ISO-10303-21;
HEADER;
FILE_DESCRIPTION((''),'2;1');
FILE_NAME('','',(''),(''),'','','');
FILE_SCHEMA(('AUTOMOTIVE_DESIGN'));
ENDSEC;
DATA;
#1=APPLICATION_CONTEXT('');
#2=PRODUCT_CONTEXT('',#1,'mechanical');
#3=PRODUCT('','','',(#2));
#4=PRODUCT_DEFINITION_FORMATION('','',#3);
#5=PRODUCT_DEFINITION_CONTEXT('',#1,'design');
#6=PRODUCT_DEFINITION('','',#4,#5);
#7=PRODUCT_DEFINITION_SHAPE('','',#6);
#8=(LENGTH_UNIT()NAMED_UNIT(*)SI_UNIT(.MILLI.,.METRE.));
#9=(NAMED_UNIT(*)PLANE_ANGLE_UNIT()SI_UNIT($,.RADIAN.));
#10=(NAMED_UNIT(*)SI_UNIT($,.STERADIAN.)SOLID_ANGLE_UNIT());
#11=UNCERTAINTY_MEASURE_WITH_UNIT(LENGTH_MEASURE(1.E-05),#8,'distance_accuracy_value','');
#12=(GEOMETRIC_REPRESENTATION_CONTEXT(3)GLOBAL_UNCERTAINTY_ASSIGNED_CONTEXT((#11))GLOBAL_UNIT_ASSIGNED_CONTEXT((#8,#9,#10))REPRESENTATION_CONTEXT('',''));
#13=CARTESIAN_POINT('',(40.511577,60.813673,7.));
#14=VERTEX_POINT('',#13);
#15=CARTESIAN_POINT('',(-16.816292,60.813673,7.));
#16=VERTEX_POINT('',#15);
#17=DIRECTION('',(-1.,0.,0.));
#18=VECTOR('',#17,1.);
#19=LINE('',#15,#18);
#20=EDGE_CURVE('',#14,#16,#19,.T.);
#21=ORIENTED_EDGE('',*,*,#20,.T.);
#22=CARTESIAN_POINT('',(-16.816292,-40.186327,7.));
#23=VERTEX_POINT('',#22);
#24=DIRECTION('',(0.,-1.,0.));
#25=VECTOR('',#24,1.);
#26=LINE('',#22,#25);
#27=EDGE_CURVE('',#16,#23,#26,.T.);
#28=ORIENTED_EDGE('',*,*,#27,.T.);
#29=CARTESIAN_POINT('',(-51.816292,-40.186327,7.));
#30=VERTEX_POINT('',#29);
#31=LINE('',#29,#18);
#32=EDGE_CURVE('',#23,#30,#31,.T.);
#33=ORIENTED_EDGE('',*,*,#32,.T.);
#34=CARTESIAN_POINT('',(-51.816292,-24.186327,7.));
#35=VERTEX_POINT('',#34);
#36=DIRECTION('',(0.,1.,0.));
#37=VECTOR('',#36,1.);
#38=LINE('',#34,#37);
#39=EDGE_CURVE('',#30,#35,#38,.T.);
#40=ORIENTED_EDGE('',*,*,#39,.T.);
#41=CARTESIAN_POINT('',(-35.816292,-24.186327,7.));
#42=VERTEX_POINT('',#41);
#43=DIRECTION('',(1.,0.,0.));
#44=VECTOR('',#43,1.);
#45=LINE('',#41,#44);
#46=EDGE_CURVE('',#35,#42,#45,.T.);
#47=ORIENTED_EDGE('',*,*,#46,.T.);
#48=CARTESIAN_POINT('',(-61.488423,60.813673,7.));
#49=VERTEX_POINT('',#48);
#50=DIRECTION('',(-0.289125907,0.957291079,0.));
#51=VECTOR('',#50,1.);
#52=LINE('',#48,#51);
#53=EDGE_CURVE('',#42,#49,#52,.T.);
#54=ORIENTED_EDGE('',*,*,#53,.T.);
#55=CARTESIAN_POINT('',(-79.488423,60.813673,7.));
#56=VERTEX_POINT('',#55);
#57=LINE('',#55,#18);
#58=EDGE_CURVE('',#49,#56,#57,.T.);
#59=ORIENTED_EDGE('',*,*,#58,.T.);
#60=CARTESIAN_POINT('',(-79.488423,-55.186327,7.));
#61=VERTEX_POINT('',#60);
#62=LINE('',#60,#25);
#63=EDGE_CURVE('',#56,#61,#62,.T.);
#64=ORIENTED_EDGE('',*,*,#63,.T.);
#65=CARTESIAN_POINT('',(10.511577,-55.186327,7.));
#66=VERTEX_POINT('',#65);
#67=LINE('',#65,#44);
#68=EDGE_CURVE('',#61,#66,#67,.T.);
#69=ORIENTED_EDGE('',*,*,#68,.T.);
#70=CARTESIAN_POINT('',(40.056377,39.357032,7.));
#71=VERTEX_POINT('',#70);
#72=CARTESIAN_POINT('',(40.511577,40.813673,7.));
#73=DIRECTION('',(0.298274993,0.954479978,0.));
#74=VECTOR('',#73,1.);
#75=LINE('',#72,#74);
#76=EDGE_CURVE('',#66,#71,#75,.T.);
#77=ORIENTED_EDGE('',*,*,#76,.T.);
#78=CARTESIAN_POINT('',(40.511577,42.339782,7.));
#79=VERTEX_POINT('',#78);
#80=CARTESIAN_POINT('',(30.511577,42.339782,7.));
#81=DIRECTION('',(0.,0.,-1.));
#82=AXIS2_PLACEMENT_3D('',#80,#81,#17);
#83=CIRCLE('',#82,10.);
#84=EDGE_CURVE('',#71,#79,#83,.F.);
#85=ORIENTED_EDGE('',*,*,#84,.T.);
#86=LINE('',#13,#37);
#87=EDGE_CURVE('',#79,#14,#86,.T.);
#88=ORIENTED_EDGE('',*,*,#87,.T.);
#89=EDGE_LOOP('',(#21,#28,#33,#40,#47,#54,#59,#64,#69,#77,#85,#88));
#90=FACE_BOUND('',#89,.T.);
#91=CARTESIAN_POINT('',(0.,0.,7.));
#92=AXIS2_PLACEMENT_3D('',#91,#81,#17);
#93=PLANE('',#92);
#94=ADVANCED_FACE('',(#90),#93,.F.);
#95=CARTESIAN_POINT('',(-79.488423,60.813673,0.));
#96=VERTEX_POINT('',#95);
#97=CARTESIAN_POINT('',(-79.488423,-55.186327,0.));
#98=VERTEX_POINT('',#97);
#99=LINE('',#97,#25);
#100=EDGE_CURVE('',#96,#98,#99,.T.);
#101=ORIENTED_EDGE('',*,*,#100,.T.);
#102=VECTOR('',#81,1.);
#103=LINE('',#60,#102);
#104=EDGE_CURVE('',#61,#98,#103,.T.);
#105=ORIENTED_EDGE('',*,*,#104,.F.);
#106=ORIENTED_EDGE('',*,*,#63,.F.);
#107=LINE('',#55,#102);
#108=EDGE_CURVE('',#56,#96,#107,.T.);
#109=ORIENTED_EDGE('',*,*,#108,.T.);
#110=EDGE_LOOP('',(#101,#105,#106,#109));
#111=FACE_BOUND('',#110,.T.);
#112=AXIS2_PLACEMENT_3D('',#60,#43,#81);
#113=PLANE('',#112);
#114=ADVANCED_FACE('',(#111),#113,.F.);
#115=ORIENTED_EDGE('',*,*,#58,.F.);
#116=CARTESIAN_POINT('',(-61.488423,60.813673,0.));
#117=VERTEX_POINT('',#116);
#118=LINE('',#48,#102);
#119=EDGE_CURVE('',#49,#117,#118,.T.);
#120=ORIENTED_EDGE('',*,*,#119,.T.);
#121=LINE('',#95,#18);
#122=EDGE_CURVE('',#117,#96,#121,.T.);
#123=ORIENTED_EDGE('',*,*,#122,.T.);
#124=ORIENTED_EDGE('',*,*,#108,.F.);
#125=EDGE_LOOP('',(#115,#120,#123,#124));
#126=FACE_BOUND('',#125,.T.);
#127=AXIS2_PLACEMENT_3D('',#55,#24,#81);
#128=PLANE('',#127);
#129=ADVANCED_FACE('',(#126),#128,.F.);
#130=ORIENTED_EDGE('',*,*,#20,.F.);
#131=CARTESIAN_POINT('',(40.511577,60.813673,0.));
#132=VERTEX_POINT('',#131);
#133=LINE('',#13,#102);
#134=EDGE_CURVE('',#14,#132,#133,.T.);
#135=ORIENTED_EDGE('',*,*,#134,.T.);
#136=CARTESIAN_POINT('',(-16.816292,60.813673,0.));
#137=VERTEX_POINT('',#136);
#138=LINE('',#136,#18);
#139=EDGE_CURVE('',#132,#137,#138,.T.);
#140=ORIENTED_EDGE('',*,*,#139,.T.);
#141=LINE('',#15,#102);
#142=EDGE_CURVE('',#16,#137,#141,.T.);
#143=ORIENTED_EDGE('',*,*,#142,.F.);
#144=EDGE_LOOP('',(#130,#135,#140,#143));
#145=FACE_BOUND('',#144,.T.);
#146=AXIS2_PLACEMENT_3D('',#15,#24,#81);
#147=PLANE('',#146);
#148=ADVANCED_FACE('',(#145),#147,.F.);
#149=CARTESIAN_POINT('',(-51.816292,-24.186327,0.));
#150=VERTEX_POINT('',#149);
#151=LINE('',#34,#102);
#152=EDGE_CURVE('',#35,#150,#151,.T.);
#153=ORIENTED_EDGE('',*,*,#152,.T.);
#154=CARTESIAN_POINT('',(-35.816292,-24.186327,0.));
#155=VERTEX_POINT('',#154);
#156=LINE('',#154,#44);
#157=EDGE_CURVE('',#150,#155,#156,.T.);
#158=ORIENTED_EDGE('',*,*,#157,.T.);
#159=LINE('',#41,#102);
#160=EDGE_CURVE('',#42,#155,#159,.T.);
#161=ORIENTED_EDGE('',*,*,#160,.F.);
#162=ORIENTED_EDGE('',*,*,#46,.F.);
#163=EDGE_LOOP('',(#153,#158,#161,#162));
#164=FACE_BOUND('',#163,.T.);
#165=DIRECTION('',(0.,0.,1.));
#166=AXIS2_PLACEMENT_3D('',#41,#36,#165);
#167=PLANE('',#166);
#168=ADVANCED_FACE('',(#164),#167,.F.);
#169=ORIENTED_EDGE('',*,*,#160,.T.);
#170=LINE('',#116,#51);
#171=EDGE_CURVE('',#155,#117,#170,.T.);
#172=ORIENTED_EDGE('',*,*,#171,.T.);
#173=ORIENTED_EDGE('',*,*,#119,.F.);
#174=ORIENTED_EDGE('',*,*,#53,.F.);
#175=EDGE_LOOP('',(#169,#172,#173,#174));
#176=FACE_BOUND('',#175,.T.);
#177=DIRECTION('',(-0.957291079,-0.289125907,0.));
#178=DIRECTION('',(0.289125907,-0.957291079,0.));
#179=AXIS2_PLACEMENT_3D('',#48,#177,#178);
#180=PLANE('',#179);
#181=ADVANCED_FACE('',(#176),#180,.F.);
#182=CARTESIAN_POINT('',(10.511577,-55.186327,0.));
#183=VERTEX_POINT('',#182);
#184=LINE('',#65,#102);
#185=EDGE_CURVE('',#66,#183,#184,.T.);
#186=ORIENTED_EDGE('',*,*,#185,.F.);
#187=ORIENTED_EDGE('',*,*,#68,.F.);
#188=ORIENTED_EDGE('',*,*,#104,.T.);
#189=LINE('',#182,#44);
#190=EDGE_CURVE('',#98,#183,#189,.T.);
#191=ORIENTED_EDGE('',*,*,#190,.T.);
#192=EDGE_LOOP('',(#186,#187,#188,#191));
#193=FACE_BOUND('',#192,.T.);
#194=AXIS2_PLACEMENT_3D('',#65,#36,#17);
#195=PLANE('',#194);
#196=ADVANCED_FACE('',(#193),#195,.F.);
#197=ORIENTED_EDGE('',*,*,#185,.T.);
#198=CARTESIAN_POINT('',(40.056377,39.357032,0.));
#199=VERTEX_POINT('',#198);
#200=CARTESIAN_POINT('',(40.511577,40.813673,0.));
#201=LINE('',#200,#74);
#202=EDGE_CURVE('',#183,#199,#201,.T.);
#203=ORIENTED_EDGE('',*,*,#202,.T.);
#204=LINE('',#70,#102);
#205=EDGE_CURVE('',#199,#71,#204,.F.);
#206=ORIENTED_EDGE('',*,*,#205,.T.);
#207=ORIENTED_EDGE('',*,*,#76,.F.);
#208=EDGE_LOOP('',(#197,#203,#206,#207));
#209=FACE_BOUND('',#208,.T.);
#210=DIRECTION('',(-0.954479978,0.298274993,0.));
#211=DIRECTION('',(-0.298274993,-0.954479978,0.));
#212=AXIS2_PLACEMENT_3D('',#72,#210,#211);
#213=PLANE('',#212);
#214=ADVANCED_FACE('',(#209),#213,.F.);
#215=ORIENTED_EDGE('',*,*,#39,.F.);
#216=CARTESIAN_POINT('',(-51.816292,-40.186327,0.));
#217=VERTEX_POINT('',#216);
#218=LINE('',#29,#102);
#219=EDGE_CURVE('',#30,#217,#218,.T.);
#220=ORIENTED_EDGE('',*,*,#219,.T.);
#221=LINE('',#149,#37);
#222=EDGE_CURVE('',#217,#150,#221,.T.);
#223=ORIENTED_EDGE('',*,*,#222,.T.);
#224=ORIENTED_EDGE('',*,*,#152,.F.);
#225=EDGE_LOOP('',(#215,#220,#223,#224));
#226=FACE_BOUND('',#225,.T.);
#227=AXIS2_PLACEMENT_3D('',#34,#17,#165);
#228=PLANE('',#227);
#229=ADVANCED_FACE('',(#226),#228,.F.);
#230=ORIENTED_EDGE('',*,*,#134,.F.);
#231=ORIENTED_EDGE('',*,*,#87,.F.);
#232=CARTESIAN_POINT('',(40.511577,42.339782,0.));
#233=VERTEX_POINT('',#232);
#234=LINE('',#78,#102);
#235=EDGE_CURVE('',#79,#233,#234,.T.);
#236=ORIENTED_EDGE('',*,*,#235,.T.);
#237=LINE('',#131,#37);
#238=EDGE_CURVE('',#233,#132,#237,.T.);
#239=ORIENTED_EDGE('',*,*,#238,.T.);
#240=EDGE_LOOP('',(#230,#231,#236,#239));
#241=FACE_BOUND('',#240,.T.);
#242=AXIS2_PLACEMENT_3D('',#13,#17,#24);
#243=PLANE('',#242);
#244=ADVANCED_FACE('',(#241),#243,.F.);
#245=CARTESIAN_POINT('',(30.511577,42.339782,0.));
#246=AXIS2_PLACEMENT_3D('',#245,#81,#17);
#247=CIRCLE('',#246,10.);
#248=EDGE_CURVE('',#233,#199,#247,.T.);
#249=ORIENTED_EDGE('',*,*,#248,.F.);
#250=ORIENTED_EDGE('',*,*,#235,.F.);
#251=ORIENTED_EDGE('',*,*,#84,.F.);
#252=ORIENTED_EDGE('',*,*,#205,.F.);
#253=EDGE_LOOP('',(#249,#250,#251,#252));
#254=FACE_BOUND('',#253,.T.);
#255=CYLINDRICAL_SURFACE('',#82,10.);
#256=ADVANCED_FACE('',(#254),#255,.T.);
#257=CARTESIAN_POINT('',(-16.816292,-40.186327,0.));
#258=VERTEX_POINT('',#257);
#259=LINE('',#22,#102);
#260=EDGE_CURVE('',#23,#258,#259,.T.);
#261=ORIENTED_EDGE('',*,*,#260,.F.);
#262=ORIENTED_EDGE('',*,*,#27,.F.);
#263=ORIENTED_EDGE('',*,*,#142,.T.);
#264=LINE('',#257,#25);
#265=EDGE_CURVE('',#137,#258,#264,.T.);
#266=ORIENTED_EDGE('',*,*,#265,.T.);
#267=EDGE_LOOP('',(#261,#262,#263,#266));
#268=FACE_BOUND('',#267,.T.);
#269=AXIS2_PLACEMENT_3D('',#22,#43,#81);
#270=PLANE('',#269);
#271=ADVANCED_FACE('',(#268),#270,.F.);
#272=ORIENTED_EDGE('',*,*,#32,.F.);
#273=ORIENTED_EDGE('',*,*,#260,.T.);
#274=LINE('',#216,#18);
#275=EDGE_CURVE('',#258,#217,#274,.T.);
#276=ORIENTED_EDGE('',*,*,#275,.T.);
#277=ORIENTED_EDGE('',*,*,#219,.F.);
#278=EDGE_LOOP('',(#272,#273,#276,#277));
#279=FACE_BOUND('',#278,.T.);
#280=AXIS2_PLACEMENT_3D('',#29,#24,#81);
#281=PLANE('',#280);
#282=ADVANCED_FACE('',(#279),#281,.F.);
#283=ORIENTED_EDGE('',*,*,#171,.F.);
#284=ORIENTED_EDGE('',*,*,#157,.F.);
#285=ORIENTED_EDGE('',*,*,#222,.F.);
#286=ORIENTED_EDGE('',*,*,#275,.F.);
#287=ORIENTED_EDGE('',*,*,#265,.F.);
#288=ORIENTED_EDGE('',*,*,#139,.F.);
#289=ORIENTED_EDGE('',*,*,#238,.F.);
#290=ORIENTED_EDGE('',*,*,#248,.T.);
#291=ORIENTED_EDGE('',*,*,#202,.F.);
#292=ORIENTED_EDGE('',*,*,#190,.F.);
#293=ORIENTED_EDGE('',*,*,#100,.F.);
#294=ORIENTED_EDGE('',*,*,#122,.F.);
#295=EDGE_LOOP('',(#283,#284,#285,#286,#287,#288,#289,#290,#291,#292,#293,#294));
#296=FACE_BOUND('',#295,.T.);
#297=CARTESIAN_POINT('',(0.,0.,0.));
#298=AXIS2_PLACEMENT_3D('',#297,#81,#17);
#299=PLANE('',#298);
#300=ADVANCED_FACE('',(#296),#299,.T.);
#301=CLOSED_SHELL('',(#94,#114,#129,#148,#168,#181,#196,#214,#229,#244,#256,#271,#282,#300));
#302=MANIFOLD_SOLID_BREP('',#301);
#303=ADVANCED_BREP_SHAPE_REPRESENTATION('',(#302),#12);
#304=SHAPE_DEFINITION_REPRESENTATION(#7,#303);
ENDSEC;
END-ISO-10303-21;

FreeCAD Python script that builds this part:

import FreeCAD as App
import Part
import Sketcher

V = App.Vector


def edges_at(feature, points):
    """Names of the edges that pass closest to the given points."""
    edges = feature.Shape.Edges
    near = lambda p: min(range(len(edges)), key=lambda i: edges[i].distToShape(Part.Vertex(*p))[0])
    return sorted({f"Edge{near(p) + 1}" for p in points})


def add_polygon(sketch, points):
    """Adds a closed chain of lines whose ends are joined by coincident constraints."""
    first, n = sketch.GeometryCount, len(points)
    for a, b in zip(points, points[1:] + points[:1]):
        sketch.addGeometry(Part.LineSegment(App.Vector(*a, 0), App.Vector(*b, 0)), False)
    for i in range(n):
        sketch.addConstraint(Sketcher.Constraint("Coincident", first + i, 2, first + (i + 1) % n, 1))

doc = App.newDocument("Part")
body = doc.addObject("PartDesign::Body", "Body")

# Sketch on XY plane
sketch1 = doc.addObject("Sketcher::SketchObject", "Sketch")
body.addObject(sketch1)
sketch1.AttachmentSupport = (doc.XY_Plane, [""])
sketch1.MapMode = "FlatFace"
add_polygon(sketch1, [(-61, 61), (-79, 61), (-79, -55), (11, -55), (41, 41), (41, 61), (-17, 61), (-17, -40), (-52, -40), (-52, -24), (-36, -24)])  # lines 0-10
sketch1.addConstraint([
    Sketcher.Constraint("Horizontal", 0),
    Sketcher.Constraint("Vertical", 1),
    Sketcher.Constraint("Horizontal", 2),
    Sketcher.Constraint("Vertical", 4),
    Sketcher.Constraint("Horizontal", 5),
    Sketcher.Constraint("Vertical", 6),
    Sketcher.Constraint("Horizontal", 7),
    Sketcher.Constraint("Vertical", 8),
    Sketcher.Constraint("Horizontal", 9),
    Sketcher.Constraint("Horizontal", 0, 2, 4, 2),
    Sketcher.Constraint("Equal", 9, 8),
    Sketcher.Constraint("DistanceX", 0, 2, 0, 1, 18.0),
    Sketcher.Constraint("DistanceX", 2, 1, 2, 2, 90.0),
    Sketcher.Constraint("DistanceX", 7, 2, 7, 1, 35.0),
    Sketcher.Constraint("DistanceX", 9, 1, 9, 2, 16.0),
    Sketcher.Constraint("DistanceY", 1, 2, 1, 1, 116.0),
    Sketcher.Constraint("DistanceY", 4, 1, 4, 2, 20.0),
    Sketcher.Constraint("DistanceY", 6, 2, 6, 1, 101.0),
    Sketcher.Constraint("DistanceX", 2, 2, 3, 2, 30.0),
    Sketcher.Constraint("DistanceX", 5, 2, 5, 1, 57.327869),
    Sketcher.Constraint("DistanceX", 5, 2, -1, 1, 16.816292),
    Sketcher.Constraint("DistanceY", -1, 1, 0, 2, 60.813673),
])
pad1 = doc.addObject("PartDesign::Pad", "Pad")
body.addObject(pad1)
pad1.Profile = sketch1
pad1.Length = 7
doc.recompute()

fillet = doc.addObject("PartDesign::Fillet", "Fillet")
body.addObject(fillet)
fillet.Base = (pad1, edges_at(pad1, [(40.512, 40.814, 3.5)]))
fillet.Radius = 10

doc.recompute()
